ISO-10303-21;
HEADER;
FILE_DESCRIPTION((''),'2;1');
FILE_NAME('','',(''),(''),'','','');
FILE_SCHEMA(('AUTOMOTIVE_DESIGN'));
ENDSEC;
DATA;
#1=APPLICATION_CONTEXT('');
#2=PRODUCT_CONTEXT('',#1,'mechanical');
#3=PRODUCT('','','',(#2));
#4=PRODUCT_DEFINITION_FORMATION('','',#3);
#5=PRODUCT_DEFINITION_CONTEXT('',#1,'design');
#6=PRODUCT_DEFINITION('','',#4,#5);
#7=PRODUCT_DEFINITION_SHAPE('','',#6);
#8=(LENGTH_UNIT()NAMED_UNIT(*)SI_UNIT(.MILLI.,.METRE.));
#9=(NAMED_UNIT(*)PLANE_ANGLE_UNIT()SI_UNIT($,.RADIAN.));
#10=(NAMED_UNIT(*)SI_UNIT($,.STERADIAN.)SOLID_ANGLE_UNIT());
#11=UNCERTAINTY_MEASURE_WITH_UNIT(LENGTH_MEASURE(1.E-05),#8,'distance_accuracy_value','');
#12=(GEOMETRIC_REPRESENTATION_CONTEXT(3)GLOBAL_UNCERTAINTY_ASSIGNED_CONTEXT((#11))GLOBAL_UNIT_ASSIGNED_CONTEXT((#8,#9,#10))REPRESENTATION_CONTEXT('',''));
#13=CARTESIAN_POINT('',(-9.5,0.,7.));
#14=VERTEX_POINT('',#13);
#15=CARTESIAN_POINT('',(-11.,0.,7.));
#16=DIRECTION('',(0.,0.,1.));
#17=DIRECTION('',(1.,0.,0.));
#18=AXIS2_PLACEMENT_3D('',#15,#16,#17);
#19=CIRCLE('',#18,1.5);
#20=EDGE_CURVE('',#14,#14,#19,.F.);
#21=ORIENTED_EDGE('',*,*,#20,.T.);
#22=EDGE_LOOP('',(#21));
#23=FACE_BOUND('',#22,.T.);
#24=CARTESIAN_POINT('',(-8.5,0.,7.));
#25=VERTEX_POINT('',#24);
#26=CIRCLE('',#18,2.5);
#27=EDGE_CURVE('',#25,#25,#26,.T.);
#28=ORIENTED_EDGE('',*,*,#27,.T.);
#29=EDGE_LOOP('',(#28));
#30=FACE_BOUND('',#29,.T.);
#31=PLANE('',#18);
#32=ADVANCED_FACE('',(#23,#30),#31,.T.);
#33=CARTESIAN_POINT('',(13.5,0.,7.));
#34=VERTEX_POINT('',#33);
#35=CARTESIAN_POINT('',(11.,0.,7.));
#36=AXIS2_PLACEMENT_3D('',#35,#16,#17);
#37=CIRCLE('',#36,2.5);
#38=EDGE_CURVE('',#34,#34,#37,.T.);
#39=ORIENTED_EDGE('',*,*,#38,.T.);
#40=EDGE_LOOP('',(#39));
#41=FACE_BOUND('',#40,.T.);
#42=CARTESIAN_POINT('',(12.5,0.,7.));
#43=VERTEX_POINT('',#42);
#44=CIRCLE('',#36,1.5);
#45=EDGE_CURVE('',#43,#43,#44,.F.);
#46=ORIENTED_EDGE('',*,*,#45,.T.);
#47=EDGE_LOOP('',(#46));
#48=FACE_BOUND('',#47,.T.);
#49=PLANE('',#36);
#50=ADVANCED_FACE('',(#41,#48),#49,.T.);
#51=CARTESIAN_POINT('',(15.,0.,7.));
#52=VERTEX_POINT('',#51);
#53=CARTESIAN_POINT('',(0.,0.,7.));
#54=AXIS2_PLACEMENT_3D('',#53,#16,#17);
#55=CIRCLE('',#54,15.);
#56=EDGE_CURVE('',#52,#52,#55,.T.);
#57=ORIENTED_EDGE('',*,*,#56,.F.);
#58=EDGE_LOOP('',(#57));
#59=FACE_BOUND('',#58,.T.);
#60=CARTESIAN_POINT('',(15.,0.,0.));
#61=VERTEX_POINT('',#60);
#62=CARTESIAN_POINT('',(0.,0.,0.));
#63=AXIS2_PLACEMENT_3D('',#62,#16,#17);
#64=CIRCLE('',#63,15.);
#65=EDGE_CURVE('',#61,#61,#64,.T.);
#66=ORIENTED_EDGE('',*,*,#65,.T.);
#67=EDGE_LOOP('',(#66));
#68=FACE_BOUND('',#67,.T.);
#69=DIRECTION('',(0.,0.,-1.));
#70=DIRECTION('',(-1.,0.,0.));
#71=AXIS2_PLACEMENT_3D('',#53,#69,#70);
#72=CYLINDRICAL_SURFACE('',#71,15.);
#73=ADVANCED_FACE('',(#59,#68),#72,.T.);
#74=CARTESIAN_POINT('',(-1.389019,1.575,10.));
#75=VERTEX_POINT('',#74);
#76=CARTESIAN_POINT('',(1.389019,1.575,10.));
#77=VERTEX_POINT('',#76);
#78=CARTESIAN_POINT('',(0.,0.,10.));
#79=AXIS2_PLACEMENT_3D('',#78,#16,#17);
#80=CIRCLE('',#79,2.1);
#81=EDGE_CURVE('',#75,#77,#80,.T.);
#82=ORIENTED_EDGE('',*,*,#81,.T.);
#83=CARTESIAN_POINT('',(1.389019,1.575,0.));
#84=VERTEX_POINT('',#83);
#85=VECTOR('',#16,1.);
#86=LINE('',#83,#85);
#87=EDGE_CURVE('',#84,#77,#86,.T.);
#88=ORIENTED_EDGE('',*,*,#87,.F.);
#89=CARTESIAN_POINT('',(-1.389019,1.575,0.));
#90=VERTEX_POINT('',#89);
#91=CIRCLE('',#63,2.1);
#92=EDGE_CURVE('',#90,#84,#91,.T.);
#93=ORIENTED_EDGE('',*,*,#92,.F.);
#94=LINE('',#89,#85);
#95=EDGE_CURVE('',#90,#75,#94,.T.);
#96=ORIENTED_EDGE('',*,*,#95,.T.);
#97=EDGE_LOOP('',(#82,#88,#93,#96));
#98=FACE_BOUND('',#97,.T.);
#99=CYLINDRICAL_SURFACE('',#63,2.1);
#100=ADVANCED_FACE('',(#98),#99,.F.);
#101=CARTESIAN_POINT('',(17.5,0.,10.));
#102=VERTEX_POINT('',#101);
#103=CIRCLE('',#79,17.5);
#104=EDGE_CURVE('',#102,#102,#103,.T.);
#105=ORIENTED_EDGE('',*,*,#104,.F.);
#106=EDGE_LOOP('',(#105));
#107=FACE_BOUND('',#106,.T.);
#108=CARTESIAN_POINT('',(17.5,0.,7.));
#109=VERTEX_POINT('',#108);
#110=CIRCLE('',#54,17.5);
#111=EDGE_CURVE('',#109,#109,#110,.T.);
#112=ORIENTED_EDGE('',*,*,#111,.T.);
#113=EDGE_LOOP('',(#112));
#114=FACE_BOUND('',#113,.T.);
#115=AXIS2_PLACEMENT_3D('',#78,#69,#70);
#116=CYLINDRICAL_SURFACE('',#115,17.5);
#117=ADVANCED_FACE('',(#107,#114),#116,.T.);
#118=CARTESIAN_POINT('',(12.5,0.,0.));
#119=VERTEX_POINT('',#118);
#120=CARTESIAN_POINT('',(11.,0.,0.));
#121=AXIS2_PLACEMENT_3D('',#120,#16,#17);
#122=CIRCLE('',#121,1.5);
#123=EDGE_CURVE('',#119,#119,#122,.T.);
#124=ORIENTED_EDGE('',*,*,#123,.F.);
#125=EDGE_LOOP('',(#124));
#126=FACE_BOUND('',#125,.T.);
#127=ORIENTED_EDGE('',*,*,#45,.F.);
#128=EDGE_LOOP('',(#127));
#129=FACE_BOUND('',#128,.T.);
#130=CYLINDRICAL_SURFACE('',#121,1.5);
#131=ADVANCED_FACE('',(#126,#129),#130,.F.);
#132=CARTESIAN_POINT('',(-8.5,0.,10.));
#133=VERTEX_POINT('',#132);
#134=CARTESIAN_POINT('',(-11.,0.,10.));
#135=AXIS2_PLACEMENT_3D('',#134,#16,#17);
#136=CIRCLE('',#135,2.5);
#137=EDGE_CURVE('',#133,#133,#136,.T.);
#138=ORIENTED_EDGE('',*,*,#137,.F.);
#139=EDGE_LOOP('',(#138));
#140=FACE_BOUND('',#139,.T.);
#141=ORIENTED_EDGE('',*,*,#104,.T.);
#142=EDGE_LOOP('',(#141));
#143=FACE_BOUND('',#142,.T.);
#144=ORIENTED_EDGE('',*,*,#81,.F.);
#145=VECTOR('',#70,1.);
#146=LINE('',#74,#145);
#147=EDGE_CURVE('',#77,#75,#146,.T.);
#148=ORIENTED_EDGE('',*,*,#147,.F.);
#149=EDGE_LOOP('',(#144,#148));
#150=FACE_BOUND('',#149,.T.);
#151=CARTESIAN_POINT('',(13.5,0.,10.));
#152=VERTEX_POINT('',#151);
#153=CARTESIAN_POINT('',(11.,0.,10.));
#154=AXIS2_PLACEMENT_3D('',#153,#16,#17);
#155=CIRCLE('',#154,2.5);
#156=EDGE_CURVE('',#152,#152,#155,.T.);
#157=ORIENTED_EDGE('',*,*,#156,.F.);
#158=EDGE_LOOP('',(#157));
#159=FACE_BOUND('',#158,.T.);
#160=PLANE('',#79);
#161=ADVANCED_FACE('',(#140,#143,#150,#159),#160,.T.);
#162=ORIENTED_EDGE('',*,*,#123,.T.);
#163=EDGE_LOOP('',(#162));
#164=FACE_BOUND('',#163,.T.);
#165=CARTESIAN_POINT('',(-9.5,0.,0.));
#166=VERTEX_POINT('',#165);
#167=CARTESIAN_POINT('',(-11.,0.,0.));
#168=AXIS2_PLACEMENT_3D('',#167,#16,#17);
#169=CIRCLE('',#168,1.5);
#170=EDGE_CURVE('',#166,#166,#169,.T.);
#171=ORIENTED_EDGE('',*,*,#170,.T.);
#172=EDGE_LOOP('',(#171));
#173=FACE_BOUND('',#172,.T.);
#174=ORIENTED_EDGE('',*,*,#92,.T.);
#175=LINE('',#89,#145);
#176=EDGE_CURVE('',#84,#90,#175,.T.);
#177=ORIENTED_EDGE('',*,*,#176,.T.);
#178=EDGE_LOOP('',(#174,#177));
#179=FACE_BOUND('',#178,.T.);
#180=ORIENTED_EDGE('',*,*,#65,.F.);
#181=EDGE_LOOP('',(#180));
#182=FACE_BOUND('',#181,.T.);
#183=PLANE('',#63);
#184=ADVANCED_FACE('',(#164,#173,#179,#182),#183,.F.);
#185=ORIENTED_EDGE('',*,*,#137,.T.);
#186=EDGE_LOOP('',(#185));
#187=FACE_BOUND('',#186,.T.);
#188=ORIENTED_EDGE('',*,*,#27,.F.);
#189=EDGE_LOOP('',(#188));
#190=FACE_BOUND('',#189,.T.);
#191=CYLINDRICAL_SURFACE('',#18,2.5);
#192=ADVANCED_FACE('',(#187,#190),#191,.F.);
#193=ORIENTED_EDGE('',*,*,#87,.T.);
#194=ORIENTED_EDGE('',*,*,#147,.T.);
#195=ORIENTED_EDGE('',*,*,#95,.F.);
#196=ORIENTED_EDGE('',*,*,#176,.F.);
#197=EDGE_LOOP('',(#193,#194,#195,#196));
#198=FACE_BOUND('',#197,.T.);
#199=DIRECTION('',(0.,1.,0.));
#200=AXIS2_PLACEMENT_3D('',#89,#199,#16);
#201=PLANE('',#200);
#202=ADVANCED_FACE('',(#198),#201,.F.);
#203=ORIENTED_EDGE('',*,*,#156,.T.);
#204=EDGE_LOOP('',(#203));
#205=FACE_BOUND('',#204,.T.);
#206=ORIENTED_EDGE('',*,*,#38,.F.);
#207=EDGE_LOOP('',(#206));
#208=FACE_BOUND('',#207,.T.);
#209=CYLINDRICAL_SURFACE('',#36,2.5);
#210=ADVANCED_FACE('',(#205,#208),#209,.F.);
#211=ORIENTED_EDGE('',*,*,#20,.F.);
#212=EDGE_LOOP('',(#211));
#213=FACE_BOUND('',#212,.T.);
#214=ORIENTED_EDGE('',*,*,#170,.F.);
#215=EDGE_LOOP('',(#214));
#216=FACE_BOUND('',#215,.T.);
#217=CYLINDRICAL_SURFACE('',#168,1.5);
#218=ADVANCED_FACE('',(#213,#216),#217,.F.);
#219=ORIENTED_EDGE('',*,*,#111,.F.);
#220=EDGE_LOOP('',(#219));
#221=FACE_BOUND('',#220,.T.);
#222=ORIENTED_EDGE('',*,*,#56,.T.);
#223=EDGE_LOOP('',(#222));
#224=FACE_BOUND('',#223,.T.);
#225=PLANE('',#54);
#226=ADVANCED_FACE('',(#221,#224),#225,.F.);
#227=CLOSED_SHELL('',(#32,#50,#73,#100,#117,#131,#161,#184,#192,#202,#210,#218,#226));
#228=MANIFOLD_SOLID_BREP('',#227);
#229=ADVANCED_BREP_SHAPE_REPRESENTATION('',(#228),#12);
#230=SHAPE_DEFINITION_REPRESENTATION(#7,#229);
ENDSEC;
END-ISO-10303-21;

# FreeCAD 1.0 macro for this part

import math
import FreeCAD as App
import Part
import Sketcher

doc = App.newDocument("Part")
body = doc.addObject("PartDesign::Body", "Body")

# Sketch on XY plane
sketch1 = body.newObject("Sketcher::SketchObject", "Sketch")
sketch1.AttachmentSupport = (doc.getObject("XY_Plane"), [""])
sketch1.MapMode = "FlatFace"
sketch1.addGeometry(Part.Circle(App.Vector(0, 0, 0), App.Vector(0, 0, 1), 15), False)
sketch1.addConstraint([
    Sketcher.Constraint("Coincident", 0, 3, -1, 1),
    Sketcher.Constraint("Diameter", 0, 30.0),
])
pad1 = body.newObject("PartDesign::Pad", "Pad")
pad1.Profile = sketch1
pad1.Length = 7

# Sketch on XY plane
sketch2 = body.newObject("Sketcher::SketchObject", "Sketch001")
sketch2.AttachmentSupport = (doc.getObject("XY_Plane"), [""])
sketch2.MapMode = "FlatFace"
sketch2.AttachmentOffset = App.Placement(App.Vector(0, 0, 7), App.Rotation())
sketch2.addGeometry(Part.Circle(App.Vector(0, 0, 0), App.Vector(0, 0, 1), 18), False)
sketch2.addConstraint([
    Sketcher.Constraint("Coincident", 0, 3, -1, 1),
    Sketcher.Constraint("Diameter", 0, 35.0),
])
pad2 = body.newObject("PartDesign::Pad", "Pad001")
pad2.Profile = sketch2
pad2.Length = 3

# Sketch on XY plane
sketch3 = body.newObject("Sketcher::SketchObject", "Sketch002")
sketch3.AttachmentSupport = (doc.getObject("XY_Plane"), [""])
sketch3.MapMode = "FlatFace"
sketch3.AttachmentOffset = App.Placement(App.Vector(0, 0, 10), App.Rotation())
sketch3.addGeometry([
    Part.Circle(App.Vector(-11, 0, 0), App.Vector(0, 0, 1), 1.5),
    Part.Circle(App.Vector(11, 0, 0), App.Vector(0, 0, 1), 1.5),
], False)
sketch3.addConstraint([
    Sketcher.Constraint("Equal", 0, 1),
    Sketcher.Constraint("Symmetric", 0, 3, 1, 3, -1, 1),
    Sketcher.Constraint("PointOnObject", 0, 3, -1),
    Sketcher.Constraint("Diameter", 0, 3.0),
    Sketcher.Constraint("DistanceX", 0, 3, -1, 1, 11.0),
])
pocket1 = body.newObject("PartDesign::Pocket", "Pocket")
pocket1.Profile = sketch3
pocket1.Length = 10

# Sketch on XY plane
sketch4 = body.newObject("Sketcher::SketchObject", "Sketch003")
sketch4.AttachmentSupport = (doc.getObject("XY_Plane"), [""])
sketch4.MapMode = "FlatFace"
sketch4.AttachmentOffset = App.Placement(App.Vector(0, 0, 10), App.Rotation())
sketch4.addGeometry([
    Part.Circle(App.Vector(11, 0, 0), App.Vector(0, 0, 1), 2.5),
    Part.Circle(App.Vector(-11, 0, 0), App.Vector(0, 0, 1), 2.5),
], False)
sketch4.addConstraint([
    Sketcher.Constraint("Equal", 0, 1),
    Sketcher.Constraint("Symmetric", 0, 3, 1, 3, -1, 1),
    Sketcher.Constraint("PointOnObject", 0, 3, -1),
    Sketcher.Constraint("Diameter", 0, 5.0),
    Sketcher.Constraint("DistanceX", -1, 1, 0, 3, 11.0),
])
pocket2 = body.newObject("PartDesign::Pocket", "Pocket001")
pocket2.Profile = sketch4
pocket2.Length = 3

# Sketch on XY plane
sketch5 = body.newObject("Sketcher::SketchObject", "Sketch004")
sketch5.AttachmentSupport = (doc.getObject("XY_Plane"), [""])
sketch5.MapMode = "FlatFace"
sketch5.AttachmentOffset = App.Placement(App.Vector(0, 0, 10), App.Rotation())
sketch5.addGeometry([
    Part.LineSegment(App.Vector(1.4, 1.6, 0), App.Vector(-1.4, 1.6, 0)),
    Part.ArcOfCircle(Part.Circle(App.Vector(0, 0, 0), App.Vector(0, 0, 1), 2.1), math.radians(131), math.radians(409)),
], False)
sketch5.addConstraint([
    Sketcher.Constraint("Coincident", 0, 1, 1, 2),
    Sketcher.Constraint("Coincident", 1, 1, 0, 2),
    Sketcher.Constraint("Horizontal", 0),
    Sketcher.Constraint("Coincident", 1, 3, -1, 1),
    Sketcher.Constraint("Radius", 1, 2.1),
    Sketcher.Constraint("DistanceY", -1, 1, 0, 1, 1.575),
])
pocket3 = body.newObject("PartDesign::Pocket", "Pocket002")
pocket3.Profile = sketch5
pocket3.Length = 10

doc.recompute()
